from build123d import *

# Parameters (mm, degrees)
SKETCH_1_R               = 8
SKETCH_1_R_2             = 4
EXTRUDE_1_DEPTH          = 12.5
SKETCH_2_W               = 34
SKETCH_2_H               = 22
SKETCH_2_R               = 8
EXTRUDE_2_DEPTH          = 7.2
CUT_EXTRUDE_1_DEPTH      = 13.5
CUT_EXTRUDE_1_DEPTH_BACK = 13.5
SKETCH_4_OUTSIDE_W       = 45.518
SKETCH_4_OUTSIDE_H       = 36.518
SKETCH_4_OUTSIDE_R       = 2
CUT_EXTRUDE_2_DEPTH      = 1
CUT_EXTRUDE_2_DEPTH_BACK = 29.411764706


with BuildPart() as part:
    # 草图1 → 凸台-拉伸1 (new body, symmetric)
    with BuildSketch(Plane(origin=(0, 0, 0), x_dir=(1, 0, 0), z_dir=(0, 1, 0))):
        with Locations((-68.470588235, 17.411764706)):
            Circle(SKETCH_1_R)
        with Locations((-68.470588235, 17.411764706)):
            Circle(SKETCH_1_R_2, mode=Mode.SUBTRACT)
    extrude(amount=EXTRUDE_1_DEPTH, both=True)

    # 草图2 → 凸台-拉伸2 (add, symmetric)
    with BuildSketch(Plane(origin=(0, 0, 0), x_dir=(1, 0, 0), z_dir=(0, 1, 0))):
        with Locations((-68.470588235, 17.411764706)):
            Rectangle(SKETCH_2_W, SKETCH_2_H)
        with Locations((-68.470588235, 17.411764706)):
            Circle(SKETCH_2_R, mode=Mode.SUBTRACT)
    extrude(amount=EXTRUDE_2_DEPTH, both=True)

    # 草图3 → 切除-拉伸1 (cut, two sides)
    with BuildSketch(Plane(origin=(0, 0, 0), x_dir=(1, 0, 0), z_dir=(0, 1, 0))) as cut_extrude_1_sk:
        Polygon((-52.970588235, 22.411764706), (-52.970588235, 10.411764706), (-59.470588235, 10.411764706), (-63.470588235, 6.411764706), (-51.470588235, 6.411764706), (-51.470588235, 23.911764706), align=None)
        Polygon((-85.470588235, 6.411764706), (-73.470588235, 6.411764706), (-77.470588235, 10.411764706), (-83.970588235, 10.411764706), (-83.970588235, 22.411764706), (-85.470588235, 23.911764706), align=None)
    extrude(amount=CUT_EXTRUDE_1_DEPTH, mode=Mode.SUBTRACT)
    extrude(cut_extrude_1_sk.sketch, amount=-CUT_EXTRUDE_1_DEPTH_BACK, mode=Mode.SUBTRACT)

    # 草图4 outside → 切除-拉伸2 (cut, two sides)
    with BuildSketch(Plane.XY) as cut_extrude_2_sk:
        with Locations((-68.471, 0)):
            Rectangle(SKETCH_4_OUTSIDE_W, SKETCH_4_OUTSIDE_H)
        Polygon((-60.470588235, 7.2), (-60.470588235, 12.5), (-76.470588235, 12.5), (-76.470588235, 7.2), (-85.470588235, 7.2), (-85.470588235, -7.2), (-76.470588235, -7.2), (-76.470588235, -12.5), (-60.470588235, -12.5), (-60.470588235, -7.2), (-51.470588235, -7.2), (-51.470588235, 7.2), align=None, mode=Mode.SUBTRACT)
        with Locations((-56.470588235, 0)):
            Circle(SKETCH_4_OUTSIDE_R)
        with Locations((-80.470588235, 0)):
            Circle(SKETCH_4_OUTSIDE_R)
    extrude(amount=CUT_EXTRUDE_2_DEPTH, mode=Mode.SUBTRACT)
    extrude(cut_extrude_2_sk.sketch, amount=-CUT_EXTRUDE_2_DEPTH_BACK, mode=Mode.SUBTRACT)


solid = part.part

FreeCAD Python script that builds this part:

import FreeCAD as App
import Part
import Sketcher
from FreeCAD import Vector
Q = App.Units.Quantity

doc = App.newDocument("Part")
body = doc.addObject("PartDesign::Body", "Body")

sketch1 = doc.addObject("Sketcher::SketchObject", "Sketch")
body.addObject(sketch1)
sketch1.AttachmentSupport = (doc.XZ_Plane, [""])
sketch1.MapMode = "FlatFace"
sketch1.addGeometry([
    Part.Circle(Vector(-68.5, -17.4, 0), Vector(0, 0, 1), 8),
    Part.Circle(Vector(-68.5, -17.4, 0), Vector(0, 0, 1), 4),
], False)
sketch1.addConstraint([
    Sketcher.Constraint("Coincident", 1, 3, 0, 3),
    Sketcher.Constraint("Diameter", 0, Q("16 mm")),
    Sketcher.Constraint("Diameter", 1, Q("8 mm")),
    Sketcher.Constraint("DistanceX", 0, 3, -1, 1, Q("68.470588 mm")),
    Sketcher.Constraint("DistanceY", 0, 3, -1, 1, Q("17.411765 mm")),
])
pad1 = doc.addObject("PartDesign::Pad", "Pad")
body.addObject(pad1)
pad1.Profile = sketch1
pad1.Length = 25
pad1.Midplane = True

sketch2 = doc.addObject("Sketcher::SketchObject", "Sketch001")
body.addObject(sketch2)
sketch2.AttachmentSupport = (doc.XZ_Plane, [""])
sketch2.MapMode = "FlatFace"
sketch2.addGeometry([
    Part.LineSegment(Vector(-85, -28, 0), Vector(-85, -6, 0)),
    Part.LineSegment(Vector(-85, -6, 0), Vector(-51, -6, 0)),
    Part.LineSegment(Vector(-51, -6, 0), Vector(-51, -28, 0)),
    Part.LineSegment(Vector(-51, -28, 0), Vector(-85, -28, 0)),
    Part.Circle(Vector(-68, -17, 0), Vector(0, 0, 1), 8),
], False)
sketch2.addConstraint([
    Sketcher.Constraint("Coincident", 0, 2, 1, 1),
    Sketcher.Constraint("Coincident", 1, 2, 2, 1),
    Sketcher.Constraint("Coincident", 2, 2, 3, 1),
    Sketcher.Constraint("Coincident", 3, 2, 0, 1),
    Sketcher.Constraint("Vertical", 0),
    Sketcher.Constraint("Horizontal", 1),
    Sketcher.Constraint("Vertical", 2),
    Sketcher.Constraint("Horizontal", 3),
    Sketcher.Constraint("Diameter", 4, Q("16 mm")),
    Sketcher.Constraint("DistanceX", 1, 1, 1, 2, Q("34 mm")),
    Sketcher.Constraint("DistanceY", 0, 1, 0, 2, Q("22 mm")),
    Sketcher.Constraint("DistanceX", 0, 2, 4, 3, Q("17 mm")),
    Sketcher.Constraint("DistanceY", 4, 3, 0, 2, Q("11 mm")),
    Sketcher.Constraint("DistanceX", 4, 3, -1, 1, Q("68.470588 mm")),
    Sketcher.Constraint("DistanceY", 4, 3, -1, 1, Q("17.411765 mm")),
])
pad2 = doc.addObject("PartDesign::Pad", "Pad001")
body.addObject(pad2)
pad2.Profile = sketch2
pad2.Length = 14.4
pad2.Midplane = True

sketch3 = doc.addObject("Sketcher::SketchObject", "Sketch002")
body.addObject(sketch3)
sketch3.AttachmentSupport = (doc.XZ_Plane, [""])
sketch3.MapMode = "FlatFace"
sketch3.addGeometry([
    Part.LineSegment(Vector(-53, -22.4, 0), Vector(-53, -10.4, 0)),
    Part.LineSegment(Vector(-53, -10.4, 0), Vector(-59.5, -10.4, 0)),
    Part.LineSegment(Vector(-59.5, -10.4, 0), Vector(-63.5, -6.4, 0)),
    Part.LineSegment(Vector(-63.5, -6.4, 0), Vector(-51.5, -6.4, 0)),
    Part.LineSegment(Vector(-51.5, -6.4, 0), Vector(-51.5, -23.9, 0)),
    Part.LineSegment(Vector(-51.5, -23.9, 0), Vector(-53, -22.4, 0)),
    Part.LineSegment(Vector(-85.5, -6.4, 0), Vector(-73.5, -6.4, 0)),
    Part.LineSegment(Vector(-73.5, -6.4, 0), Vector(-77.5, -10.4, 0)),
    Part.LineSegment(Vector(-77.5, -10.4, 0), Vector(-84, -10.4, 0)),
    Part.LineSegment(Vector(-84, -10.4, 0), Vector(-84, -22.4, 0)),
    Part.LineSegment(Vector(-84, -22.4, 0), Vector(-85.5, -23.9, 0)),
    Part.LineSegment(Vector(-85.5, -23.9, 0), Vector(-85.5, -6.4, 0)),
], False)
sketch3.addConstraint([
    Sketcher.Constraint("Coincident", 0, 2, 1, 1),
    Sketcher.Constraint("Coincident", 1, 2, 2, 1),
    Sketcher.Constraint("Coincident", 2, 2, 3, 1),
    Sketcher.Constraint("Coincident", 3, 2, 4, 1),
    Sketcher.Constraint("Coincident", 4, 2, 5, 1),
    Sketcher.Constraint("Coincident", 5, 2, 0, 1),
    Sketcher.Constraint("Coincident", 6, 2, 7, 1),
    Sketcher.Constraint("Coincident", 7, 2, 8, 1),
    Sketcher.Constraint("Coincident", 8, 2, 9, 1),
    Sketcher.Constraint("Coincident", 9, 2, 10, 1),
    Sketcher.Constraint("Coincident", 10, 2, 11, 1),
    Sketcher.Constraint("Coincident", 11, 2, 6, 1),
    Sketcher.Constraint("Vertical", 0),
    Sketcher.Constraint("Horizontal", 1),
    Sketcher.Constraint("Horizontal", 3),
    Sketcher.Constraint("Vertical", 4),
    Sketcher.Constraint("Horizontal", 6),
    Sketcher.Constraint("Horizontal", 8),
    Sketcher.Constraint("Vertical", 9),
    Sketcher.Constraint("Vertical", 11),
    Sketcher.Constraint("Parallel", 2, 5),
    Sketcher.Constraint("Perpendicular", 5, 7),
    Sketcher.Constraint("Parallel", 7, 10),
    Sketcher.Constraint("Horizontal", 3, 2, 6, 2),
    Sketcher.Constraint("Horizontal", 1, 2, 7, 2),
    Sketcher.Constraint("Horizontal", 5, 2, 9, 2),
    Sketcher.Constraint("Horizontal", 4, 2, 10, 2),
    Sketcher.Constraint("Equal", 3, 6),
    Sketcher.Constraint("Equal", 1, 8),
    Sketcher.Constraint("Equal", 6, 0),
    Sketcher.Constraint("DistanceX", 3, 1, 3, 2, Q("12 mm")),
    Sketcher.Constraint("DistanceX", 1, 2, 1, 1, Q("6.5 mm")),
    Sketcher.Constraint("DistanceX", 2, 2, 1, 2, Q("4 mm")),
    Sketcher.Constraint("DistanceX", 6, 2, 2, 2, Q("10 mm")),
    Sketcher.Constraint("DistanceX", 0, 2, -1, 1, Q("52.970588 mm")),
    Sketcher.Constraint("DistanceY", 0, 2, -1, 1, Q("10.411765 mm")),
])
pocket1 = doc.addObject("PartDesign::Pocket", "Pocket")
body.addObject(pocket1)
pocket1.Profile = sketch3
pocket1.Type = "ThroughAll"
pocket1.Midplane = True

sketch4 = doc.addObject("Sketcher::SketchObject", "Sketch003")
body.addObject(sketch4)
sketch4.AttachmentSupport = (doc.XY_Plane, [""])
sketch4.MapMode = "FlatFace"
sketch4.addGeometry([
    Part.LineSegment(Vector(-91.2, 18.3, 0), Vector(-91.2, -18.3, 0)),
    Part.LineSegment(Vector(-91.2, -18.3, 0), Vector(-45.7, -18.3, 0)),
    Part.LineSegment(Vector(-45.7, -18.3, 0), Vector(-45.7, 18.3, 0)),
    Part.LineSegment(Vector(-45.7, 18.3, 0), Vector(-91.2, 18.3, 0)),
    Part.LineSegment(Vector(-60.5, 12.5, 0), Vector(-60.5, 7.2, 0)),
    Part.LineSegment(Vector(-60.5, 7.2, 0), Vector(-51.5, 7.2, 0)),
    Part.LineSegment(Vector(-51.5, 7.2, 0), Vector(-51.5, -7.2, 0)),
    Part.LineSegment(Vector(-51.5, -7.2, 0), Vector(-60.5, -7.2, 0)),
    Part.LineSegment(Vector(-60.5, -7.2, 0), Vector(-60.5, -12.5, 0)),
    Part.LineSegment(Vector(-60.5, -12.5, 0), Vector(-76.5, -12.5, 0)),
    Part.LineSegment(Vector(-76.5, -12.5, 0), Vector(-76.5, -7.2, 0)),
    Part.LineSegment(Vector(-76.5, -7.2, 0), Vector(-85.5, -7.2, 0)),
    Part.LineSegment(Vector(-85.5, -7.2, 0), Vector(-85.5, 7.2, 0)),
    Part.LineSegment(Vector(-85.5, 7.2, 0), Vector(-76.5, 7.2, 0)),
    Part.LineSegment(Vector(-76.5, 7.2, 0), Vector(-76.5, 12.5, 0)),
    Part.LineSegment(Vector(-76.5, 12.5, 0), Vector(-60.5, 12.5, 0)),
    Part.Circle(Vector(-56.5, 0, 0), Vector(0, 0, 1), 2),
    Part.Circle(Vector(-80.5, 0, 0), Vector(0, 0, 1), 2),
], False)
sketch4.addConstraint([
    Sketcher.Constraint("Coincident", 0, 2, 1, 1),
    Sketcher.Constraint("Coincident", 1, 2, 2, 1),
    Sketcher.Constraint("Coincident", 2, 2, 3, 1),
    Sketcher.Constraint("Coincident", 3, 2, 0, 1),
    Sketcher.Constraint("Coincident", 4, 2, 5, 1),
    Sketcher.Constraint("Coincident", 5, 2, 6, 1),
    Sketcher.Constraint("Coincident", 6, 2, 7, 1),
    Sketcher.Constraint("Coincident", 7, 2, 8, 1),
    Sketcher.Constraint("Coincident", 8, 2, 9, 1),
    Sketcher.Constraint("Coincident", 9, 2, 10, 1),
    Sketcher.Constraint("Coincident", 10, 2, 11, 1),
    Sketcher.Constraint("Coincident", 11, 2, 12, 1),
    Sketcher.Constraint("Coincident", 12, 2, 13, 1),
    Sketcher.Constraint("Coincident", 13, 2, 14, 1),
    Sketcher.Constraint("Coincident", 14, 2, 15, 1),
    Sketcher.Constraint("Coincident", 15, 2, 4, 1),
    Sketcher.Constraint("Vertical", 0),
    Sketcher.Constraint("Horizontal", 1),
    Sketcher.Constraint("Vertical", 2),
    Sketcher.Constraint("Horizontal", 3),
    Sketcher.Constraint("Vertical", 4),
    Sketcher.Constraint("Horizontal", 5),
    Sketcher.Constraint("Vertical", 6),
    Sketcher.Constraint("Horizontal", 7),
    Sketcher.Constraint("Vertical", 8),
    Sketcher.Constraint("Horizontal", 9),
    Sketcher.Constraint("Vertical", 10),
    Sketcher.Constraint("Horizontal", 11),
    Sketcher.Constraint("Vertical", 12),
    Sketcher.Constraint("Horizontal", 13),
    Sketcher.Constraint("Vertical", 14),
    Sketcher.Constraint("Horizontal", 15),
    Sketcher.Constraint("Equal", 16, 17),
    Sketcher.Constraint("Symmetric", 4, 2, 7, 2, -1),
    Sketcher.Constraint("Symmetric", 10, 2, 13, 2, -1),
    Sketcher.Constraint("PointOnObject", 16, 3, -1),
    Sketcher.Constraint("PointOnObject", 17, 3, -1),
    Sketcher.Constraint("Horizontal", 7, 2, 10, 2),
    Sketcher.Constraint("Equal", 7, 11),
    Sketcher.Constraint("Equal", 4, 8),
    Sketcher.Constraint("Diameter", 16, Q("4 mm")),
    Sketcher.Constraint("DistanceX", 5, 1, 5, 2, Q("9 mm")),
    Sketcher.Constraint("DistanceX", 9, 2, 9, 1, Q("16 mm")),
    Sketcher.Constraint("DistanceY", 4, 2, 4, 1, Q("5.3 mm")),
    Sketcher.Constraint("DistanceY", 6, 2, 6, 1, Q("14.4 mm")),
    Sketcher.Constraint("DistanceX", 17, 3, 16, 3, Q("24 mm")),
    Sketcher.Constraint("DistanceX", 4, 2, 16, 3, Q("4 mm")),
    Sketcher.Constraint("DistanceX", 1, 1, 1, 2, Q("45.518 mm")),
    Sketcher.Constraint("DistanceY", 0, 2, 0, 1, Q("36.518 mm")),
    Sketcher.Constraint("DistanceX", 0, 2, -1, 1, Q("91.23 mm")),
    Sketcher.Constraint("DistanceY", 0, 2, -1, 1, Q("18.259 mm")),
    Sketcher.Constraint("DistanceX", 16, 3, -1, 1, Q("56.470588 mm")),
])
pocket2 = doc.addObject("PartDesign::Pocket", "Pocket001")
body.addObject(pocket2)
pocket2.Profile = sketch4
pocket2.Type = "ThroughAll"
pocket2.Midplane = True

doc.recompute()
